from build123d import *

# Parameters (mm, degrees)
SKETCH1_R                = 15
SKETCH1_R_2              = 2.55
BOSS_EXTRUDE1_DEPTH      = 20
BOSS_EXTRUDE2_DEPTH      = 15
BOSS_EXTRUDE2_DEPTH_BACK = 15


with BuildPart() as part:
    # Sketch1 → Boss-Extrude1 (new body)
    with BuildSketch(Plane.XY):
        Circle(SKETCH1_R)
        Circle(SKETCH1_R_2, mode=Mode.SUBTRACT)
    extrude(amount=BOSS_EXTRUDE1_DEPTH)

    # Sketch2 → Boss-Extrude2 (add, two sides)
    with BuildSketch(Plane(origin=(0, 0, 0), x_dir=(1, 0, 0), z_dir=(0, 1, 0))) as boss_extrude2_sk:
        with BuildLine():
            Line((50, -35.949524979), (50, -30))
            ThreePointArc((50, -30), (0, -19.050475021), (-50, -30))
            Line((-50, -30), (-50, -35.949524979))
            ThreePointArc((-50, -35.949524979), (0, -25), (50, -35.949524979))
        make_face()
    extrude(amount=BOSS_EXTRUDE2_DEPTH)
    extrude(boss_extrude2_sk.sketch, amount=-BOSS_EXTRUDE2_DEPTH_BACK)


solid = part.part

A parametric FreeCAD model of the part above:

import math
import FreeCAD as App
import Part
import Sketcher

V = App.Vector
Q = App.Units.Quantity

doc = App.newDocument("Part")
body = doc.addObject("PartDesign::Body", "Body")

# Sketch on XY plane
sketch1 = doc.addObject("Sketcher::SketchObject", "Sketch")
body.addObject(sketch1)
sketch1.AttachmentSupport = (doc.XY_Plane, [""])
sketch1.MapMode = "FlatFace"
sketch1.addGeometry(Part.Circle(V(0, 0, 0), V(0, 0, 1), 15), False)
sketch1.addGeometry(Part.Circle(V(0, 0, 0), V(0, 0, 1), 2.55), False)
sketch1.addConstraint(Sketcher.Constraint("Coincident", 0, 3, -1, 1))
sketch1.addConstraint(Sketcher.Constraint("Coincident", 1, 3, -1, 1))
sketch1.addConstraint(Sketcher.Constraint("Diameter", 0, Q("30 mm")))
sketch1.addConstraint(Sketcher.Constraint("Diameter", 1, Q("5.1 mm")))
pad1 = doc.addObject("PartDesign::Pad", "Pad")
body.addObject(pad1)
pad1.Profile = sketch1
pad1.Length = 20

# Sketch on XZ plane
sketch2 = doc.addObject("Sketcher::SketchObject", "Sketch001")
body.addObject(sketch2)
sketch2.AttachmentSupport = (doc.XZ_Plane, [""])
sketch2.MapMode = "FlatFace"
sketch2.addGeometry(Part.LineSegment(V(50, 35.949525, 0), V(50, 30, 0)), False)
sketch2.addGeometry(Part.ArcOfCircle(Part.Circle(V(0, 138.685441, 0), V(0, 0, 1), 119.634966), math.radians(-114.704474), math.radians(-65.295526)), False)
sketch2.addGeometry(Part.LineSegment(V(-50, 30, 0), V(-50, 35.949525, 0)), False)
sketch2.addGeometry(Part.ArcOfCircle(Part.Circle(V(0, 144.634966, 0), V(0, 0, 1), 119.634966), math.radians(-114.704474), math.radians(-65.295526)), False)
sketch2.addConstraint(Sketcher.Constraint("Coincident", 0, 2, 1, 2))
sketch2.addConstraint(Sketcher.Constraint("Coincident", 1, 1, 2, 1))
sketch2.addConstraint(Sketcher.Constraint("Coincident", 2, 2, 3, 1))
sketch2.addConstraint(Sketcher.Constraint("Coincident", 3, 2, 0, 1))
sketch2.addConstraint(Sketcher.Constraint("Vertical", 0))
sketch2.addConstraint(Sketcher.Constraint("Vertical", 2))
sketch2.addConstraint(Sketcher.Constraint("Equal", 1, 3))
sketch2.addConstraint(Sketcher.Constraint("Symmetric", 0, 2, 1, 1, -2))
sketch2.addConstraint(Sketcher.Constraint("PointOnObject", 3, 3, -2))
sketch2.addConstraint(Sketcher.Constraint("DistanceX", -1, 1, 0, 2, Q("50 mm")))
sketch2.addConstraint(Sketcher.Constraint("DistanceY", -1, 1, 0, 2, Q("30 mm")))
sketch2.addConstraint(Sketcher.Constraint("Radius", 1, Q("119.634966 mm")))
sketch2.addConstraint(Sketcher.Constraint("DistanceY", 0, 2, 0, 1, Q("5.949525 mm")))
pad2 = doc.addObject("PartDesign::Pad", "Pad001")
body.addObject(pad2)
pad2.Profile = sketch2
pad2.Type = "TwoLengths"
pad2.Length = 15
pad2.Length2 = 15
pad2.Reversed = True

doc.recompute()
